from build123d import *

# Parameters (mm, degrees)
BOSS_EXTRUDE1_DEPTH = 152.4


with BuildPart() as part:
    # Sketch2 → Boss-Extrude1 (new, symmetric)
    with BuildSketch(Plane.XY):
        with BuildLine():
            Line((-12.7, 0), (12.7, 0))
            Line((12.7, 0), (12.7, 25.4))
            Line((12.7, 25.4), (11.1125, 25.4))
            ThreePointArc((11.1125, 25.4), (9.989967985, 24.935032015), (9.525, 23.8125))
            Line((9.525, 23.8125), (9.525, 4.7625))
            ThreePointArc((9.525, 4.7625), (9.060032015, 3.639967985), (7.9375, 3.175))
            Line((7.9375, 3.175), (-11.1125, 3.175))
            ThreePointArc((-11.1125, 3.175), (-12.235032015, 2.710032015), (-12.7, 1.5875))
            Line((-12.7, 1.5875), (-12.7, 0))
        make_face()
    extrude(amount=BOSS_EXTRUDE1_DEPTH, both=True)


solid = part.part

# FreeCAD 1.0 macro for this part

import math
import FreeCAD as App
import Part
import Sketcher

V = App.Vector
Q = App.Units.Quantity

doc = App.newDocument("Part")
body = doc.addObject("PartDesign::Body", "Body")

# Sketch on XY plane
sketch1 = body.newObject("Sketcher::SketchObject", "Sketch")
sketch1.AttachmentSupport = (doc.getObject("XY_Plane"), [""])
sketch1.MapMode = "FlatFace"
sketch1.addGeometry([
    Part.LineSegment(V(-12.7, 0, 0), V(12.7, 0, 0)),  # 0
    Part.LineSegment(V(12.7, 0, 0), V(12.7, 25.4, 0)),  # 1
    Part.LineSegment(V(12.7, 25.4, 0), V(11.1, 25.4, 0)),  # 2
    Part.ArcOfCircle(Part.Circle(V(11.1, 23.8, 0), V(0, 0, 1), 1.6), math.radians(90), math.radians(180)),  # 3
    Part.LineSegment(V(9.5, 23.8, 0), V(9.5, 4.8, 0)),  # 4
    Part.ArcOfCircle(Part.Circle(V(7.9, 4.8, 0), V(0, 0, 1), 1.6), math.radians(-90), math.radians(0)),  # 5
    Part.LineSegment(V(7.9, 3.2, 0), V(-11.1, 3.2, 0)),  # 6
    Part.ArcOfCircle(Part.Circle(V(-11.1, 1.6, 0), V(0, 0, 1), 1.6), math.radians(90), math.radians(180)),  # 7
    Part.LineSegment(V(-12.7, 1.6, 0), V(-12.7, 0, 0)),  # 8
], False)
sketch1.addConstraint([
    Sketcher.Constraint("Coincident", 0, 2, 1, 1),
    Sketcher.Constraint("Coincident", 1, 2, 2, 1),
    Sketcher.Constraint("Tangent", 2, 2, 3, 1),
    Sketcher.Constraint("Tangent", 3, 2, 4, 1),
    Sketcher.Constraint("Tangent", 4, 2, 5, 2),
    Sketcher.Constraint("Tangent", 5, 1, 6, 1),
    Sketcher.Constraint("Tangent", 6, 2, 7, 1),
    Sketcher.Constraint("Tangent", 7, 2, 8, 1),
    Sketcher.Constraint("Coincident", 8, 2, 0, 1),
    Sketcher.Constraint("Horizontal", 0),
    Sketcher.Constraint("Vertical", 1),
    Sketcher.Constraint("Horizontal", 2),
    Sketcher.Constraint("Vertical", 4),
    Sketcher.Constraint("Horizontal", 6),
    Sketcher.Constraint("Vertical", 8),
    Sketcher.Constraint("Equal", 3, 5),
    Sketcher.Constraint("Equal", 5, 7),
    Sketcher.Constraint("Symmetric", 0, 2, 8, 2, -1, 1),
    Sketcher.Constraint("Equal", 0, 1),
    Sketcher.Constraint("Equal", 6, 4),
    Sketcher.Constraint("DistanceX", 0, 1, 0, 2, Q("1 in")),
    Sketcher.Constraint("Radius", 3, Q("0.0625 in")),
    Sketcher.Constraint("DistanceX", 6, 2, 6, 1, Q("0.75 in")),
])
pad1 = body.newObject("PartDesign::Pad", "Pad")
pad1.Profile = sketch1
pad1.Length = Q("12 in")
pad1.Midplane = True

doc.recompute()
